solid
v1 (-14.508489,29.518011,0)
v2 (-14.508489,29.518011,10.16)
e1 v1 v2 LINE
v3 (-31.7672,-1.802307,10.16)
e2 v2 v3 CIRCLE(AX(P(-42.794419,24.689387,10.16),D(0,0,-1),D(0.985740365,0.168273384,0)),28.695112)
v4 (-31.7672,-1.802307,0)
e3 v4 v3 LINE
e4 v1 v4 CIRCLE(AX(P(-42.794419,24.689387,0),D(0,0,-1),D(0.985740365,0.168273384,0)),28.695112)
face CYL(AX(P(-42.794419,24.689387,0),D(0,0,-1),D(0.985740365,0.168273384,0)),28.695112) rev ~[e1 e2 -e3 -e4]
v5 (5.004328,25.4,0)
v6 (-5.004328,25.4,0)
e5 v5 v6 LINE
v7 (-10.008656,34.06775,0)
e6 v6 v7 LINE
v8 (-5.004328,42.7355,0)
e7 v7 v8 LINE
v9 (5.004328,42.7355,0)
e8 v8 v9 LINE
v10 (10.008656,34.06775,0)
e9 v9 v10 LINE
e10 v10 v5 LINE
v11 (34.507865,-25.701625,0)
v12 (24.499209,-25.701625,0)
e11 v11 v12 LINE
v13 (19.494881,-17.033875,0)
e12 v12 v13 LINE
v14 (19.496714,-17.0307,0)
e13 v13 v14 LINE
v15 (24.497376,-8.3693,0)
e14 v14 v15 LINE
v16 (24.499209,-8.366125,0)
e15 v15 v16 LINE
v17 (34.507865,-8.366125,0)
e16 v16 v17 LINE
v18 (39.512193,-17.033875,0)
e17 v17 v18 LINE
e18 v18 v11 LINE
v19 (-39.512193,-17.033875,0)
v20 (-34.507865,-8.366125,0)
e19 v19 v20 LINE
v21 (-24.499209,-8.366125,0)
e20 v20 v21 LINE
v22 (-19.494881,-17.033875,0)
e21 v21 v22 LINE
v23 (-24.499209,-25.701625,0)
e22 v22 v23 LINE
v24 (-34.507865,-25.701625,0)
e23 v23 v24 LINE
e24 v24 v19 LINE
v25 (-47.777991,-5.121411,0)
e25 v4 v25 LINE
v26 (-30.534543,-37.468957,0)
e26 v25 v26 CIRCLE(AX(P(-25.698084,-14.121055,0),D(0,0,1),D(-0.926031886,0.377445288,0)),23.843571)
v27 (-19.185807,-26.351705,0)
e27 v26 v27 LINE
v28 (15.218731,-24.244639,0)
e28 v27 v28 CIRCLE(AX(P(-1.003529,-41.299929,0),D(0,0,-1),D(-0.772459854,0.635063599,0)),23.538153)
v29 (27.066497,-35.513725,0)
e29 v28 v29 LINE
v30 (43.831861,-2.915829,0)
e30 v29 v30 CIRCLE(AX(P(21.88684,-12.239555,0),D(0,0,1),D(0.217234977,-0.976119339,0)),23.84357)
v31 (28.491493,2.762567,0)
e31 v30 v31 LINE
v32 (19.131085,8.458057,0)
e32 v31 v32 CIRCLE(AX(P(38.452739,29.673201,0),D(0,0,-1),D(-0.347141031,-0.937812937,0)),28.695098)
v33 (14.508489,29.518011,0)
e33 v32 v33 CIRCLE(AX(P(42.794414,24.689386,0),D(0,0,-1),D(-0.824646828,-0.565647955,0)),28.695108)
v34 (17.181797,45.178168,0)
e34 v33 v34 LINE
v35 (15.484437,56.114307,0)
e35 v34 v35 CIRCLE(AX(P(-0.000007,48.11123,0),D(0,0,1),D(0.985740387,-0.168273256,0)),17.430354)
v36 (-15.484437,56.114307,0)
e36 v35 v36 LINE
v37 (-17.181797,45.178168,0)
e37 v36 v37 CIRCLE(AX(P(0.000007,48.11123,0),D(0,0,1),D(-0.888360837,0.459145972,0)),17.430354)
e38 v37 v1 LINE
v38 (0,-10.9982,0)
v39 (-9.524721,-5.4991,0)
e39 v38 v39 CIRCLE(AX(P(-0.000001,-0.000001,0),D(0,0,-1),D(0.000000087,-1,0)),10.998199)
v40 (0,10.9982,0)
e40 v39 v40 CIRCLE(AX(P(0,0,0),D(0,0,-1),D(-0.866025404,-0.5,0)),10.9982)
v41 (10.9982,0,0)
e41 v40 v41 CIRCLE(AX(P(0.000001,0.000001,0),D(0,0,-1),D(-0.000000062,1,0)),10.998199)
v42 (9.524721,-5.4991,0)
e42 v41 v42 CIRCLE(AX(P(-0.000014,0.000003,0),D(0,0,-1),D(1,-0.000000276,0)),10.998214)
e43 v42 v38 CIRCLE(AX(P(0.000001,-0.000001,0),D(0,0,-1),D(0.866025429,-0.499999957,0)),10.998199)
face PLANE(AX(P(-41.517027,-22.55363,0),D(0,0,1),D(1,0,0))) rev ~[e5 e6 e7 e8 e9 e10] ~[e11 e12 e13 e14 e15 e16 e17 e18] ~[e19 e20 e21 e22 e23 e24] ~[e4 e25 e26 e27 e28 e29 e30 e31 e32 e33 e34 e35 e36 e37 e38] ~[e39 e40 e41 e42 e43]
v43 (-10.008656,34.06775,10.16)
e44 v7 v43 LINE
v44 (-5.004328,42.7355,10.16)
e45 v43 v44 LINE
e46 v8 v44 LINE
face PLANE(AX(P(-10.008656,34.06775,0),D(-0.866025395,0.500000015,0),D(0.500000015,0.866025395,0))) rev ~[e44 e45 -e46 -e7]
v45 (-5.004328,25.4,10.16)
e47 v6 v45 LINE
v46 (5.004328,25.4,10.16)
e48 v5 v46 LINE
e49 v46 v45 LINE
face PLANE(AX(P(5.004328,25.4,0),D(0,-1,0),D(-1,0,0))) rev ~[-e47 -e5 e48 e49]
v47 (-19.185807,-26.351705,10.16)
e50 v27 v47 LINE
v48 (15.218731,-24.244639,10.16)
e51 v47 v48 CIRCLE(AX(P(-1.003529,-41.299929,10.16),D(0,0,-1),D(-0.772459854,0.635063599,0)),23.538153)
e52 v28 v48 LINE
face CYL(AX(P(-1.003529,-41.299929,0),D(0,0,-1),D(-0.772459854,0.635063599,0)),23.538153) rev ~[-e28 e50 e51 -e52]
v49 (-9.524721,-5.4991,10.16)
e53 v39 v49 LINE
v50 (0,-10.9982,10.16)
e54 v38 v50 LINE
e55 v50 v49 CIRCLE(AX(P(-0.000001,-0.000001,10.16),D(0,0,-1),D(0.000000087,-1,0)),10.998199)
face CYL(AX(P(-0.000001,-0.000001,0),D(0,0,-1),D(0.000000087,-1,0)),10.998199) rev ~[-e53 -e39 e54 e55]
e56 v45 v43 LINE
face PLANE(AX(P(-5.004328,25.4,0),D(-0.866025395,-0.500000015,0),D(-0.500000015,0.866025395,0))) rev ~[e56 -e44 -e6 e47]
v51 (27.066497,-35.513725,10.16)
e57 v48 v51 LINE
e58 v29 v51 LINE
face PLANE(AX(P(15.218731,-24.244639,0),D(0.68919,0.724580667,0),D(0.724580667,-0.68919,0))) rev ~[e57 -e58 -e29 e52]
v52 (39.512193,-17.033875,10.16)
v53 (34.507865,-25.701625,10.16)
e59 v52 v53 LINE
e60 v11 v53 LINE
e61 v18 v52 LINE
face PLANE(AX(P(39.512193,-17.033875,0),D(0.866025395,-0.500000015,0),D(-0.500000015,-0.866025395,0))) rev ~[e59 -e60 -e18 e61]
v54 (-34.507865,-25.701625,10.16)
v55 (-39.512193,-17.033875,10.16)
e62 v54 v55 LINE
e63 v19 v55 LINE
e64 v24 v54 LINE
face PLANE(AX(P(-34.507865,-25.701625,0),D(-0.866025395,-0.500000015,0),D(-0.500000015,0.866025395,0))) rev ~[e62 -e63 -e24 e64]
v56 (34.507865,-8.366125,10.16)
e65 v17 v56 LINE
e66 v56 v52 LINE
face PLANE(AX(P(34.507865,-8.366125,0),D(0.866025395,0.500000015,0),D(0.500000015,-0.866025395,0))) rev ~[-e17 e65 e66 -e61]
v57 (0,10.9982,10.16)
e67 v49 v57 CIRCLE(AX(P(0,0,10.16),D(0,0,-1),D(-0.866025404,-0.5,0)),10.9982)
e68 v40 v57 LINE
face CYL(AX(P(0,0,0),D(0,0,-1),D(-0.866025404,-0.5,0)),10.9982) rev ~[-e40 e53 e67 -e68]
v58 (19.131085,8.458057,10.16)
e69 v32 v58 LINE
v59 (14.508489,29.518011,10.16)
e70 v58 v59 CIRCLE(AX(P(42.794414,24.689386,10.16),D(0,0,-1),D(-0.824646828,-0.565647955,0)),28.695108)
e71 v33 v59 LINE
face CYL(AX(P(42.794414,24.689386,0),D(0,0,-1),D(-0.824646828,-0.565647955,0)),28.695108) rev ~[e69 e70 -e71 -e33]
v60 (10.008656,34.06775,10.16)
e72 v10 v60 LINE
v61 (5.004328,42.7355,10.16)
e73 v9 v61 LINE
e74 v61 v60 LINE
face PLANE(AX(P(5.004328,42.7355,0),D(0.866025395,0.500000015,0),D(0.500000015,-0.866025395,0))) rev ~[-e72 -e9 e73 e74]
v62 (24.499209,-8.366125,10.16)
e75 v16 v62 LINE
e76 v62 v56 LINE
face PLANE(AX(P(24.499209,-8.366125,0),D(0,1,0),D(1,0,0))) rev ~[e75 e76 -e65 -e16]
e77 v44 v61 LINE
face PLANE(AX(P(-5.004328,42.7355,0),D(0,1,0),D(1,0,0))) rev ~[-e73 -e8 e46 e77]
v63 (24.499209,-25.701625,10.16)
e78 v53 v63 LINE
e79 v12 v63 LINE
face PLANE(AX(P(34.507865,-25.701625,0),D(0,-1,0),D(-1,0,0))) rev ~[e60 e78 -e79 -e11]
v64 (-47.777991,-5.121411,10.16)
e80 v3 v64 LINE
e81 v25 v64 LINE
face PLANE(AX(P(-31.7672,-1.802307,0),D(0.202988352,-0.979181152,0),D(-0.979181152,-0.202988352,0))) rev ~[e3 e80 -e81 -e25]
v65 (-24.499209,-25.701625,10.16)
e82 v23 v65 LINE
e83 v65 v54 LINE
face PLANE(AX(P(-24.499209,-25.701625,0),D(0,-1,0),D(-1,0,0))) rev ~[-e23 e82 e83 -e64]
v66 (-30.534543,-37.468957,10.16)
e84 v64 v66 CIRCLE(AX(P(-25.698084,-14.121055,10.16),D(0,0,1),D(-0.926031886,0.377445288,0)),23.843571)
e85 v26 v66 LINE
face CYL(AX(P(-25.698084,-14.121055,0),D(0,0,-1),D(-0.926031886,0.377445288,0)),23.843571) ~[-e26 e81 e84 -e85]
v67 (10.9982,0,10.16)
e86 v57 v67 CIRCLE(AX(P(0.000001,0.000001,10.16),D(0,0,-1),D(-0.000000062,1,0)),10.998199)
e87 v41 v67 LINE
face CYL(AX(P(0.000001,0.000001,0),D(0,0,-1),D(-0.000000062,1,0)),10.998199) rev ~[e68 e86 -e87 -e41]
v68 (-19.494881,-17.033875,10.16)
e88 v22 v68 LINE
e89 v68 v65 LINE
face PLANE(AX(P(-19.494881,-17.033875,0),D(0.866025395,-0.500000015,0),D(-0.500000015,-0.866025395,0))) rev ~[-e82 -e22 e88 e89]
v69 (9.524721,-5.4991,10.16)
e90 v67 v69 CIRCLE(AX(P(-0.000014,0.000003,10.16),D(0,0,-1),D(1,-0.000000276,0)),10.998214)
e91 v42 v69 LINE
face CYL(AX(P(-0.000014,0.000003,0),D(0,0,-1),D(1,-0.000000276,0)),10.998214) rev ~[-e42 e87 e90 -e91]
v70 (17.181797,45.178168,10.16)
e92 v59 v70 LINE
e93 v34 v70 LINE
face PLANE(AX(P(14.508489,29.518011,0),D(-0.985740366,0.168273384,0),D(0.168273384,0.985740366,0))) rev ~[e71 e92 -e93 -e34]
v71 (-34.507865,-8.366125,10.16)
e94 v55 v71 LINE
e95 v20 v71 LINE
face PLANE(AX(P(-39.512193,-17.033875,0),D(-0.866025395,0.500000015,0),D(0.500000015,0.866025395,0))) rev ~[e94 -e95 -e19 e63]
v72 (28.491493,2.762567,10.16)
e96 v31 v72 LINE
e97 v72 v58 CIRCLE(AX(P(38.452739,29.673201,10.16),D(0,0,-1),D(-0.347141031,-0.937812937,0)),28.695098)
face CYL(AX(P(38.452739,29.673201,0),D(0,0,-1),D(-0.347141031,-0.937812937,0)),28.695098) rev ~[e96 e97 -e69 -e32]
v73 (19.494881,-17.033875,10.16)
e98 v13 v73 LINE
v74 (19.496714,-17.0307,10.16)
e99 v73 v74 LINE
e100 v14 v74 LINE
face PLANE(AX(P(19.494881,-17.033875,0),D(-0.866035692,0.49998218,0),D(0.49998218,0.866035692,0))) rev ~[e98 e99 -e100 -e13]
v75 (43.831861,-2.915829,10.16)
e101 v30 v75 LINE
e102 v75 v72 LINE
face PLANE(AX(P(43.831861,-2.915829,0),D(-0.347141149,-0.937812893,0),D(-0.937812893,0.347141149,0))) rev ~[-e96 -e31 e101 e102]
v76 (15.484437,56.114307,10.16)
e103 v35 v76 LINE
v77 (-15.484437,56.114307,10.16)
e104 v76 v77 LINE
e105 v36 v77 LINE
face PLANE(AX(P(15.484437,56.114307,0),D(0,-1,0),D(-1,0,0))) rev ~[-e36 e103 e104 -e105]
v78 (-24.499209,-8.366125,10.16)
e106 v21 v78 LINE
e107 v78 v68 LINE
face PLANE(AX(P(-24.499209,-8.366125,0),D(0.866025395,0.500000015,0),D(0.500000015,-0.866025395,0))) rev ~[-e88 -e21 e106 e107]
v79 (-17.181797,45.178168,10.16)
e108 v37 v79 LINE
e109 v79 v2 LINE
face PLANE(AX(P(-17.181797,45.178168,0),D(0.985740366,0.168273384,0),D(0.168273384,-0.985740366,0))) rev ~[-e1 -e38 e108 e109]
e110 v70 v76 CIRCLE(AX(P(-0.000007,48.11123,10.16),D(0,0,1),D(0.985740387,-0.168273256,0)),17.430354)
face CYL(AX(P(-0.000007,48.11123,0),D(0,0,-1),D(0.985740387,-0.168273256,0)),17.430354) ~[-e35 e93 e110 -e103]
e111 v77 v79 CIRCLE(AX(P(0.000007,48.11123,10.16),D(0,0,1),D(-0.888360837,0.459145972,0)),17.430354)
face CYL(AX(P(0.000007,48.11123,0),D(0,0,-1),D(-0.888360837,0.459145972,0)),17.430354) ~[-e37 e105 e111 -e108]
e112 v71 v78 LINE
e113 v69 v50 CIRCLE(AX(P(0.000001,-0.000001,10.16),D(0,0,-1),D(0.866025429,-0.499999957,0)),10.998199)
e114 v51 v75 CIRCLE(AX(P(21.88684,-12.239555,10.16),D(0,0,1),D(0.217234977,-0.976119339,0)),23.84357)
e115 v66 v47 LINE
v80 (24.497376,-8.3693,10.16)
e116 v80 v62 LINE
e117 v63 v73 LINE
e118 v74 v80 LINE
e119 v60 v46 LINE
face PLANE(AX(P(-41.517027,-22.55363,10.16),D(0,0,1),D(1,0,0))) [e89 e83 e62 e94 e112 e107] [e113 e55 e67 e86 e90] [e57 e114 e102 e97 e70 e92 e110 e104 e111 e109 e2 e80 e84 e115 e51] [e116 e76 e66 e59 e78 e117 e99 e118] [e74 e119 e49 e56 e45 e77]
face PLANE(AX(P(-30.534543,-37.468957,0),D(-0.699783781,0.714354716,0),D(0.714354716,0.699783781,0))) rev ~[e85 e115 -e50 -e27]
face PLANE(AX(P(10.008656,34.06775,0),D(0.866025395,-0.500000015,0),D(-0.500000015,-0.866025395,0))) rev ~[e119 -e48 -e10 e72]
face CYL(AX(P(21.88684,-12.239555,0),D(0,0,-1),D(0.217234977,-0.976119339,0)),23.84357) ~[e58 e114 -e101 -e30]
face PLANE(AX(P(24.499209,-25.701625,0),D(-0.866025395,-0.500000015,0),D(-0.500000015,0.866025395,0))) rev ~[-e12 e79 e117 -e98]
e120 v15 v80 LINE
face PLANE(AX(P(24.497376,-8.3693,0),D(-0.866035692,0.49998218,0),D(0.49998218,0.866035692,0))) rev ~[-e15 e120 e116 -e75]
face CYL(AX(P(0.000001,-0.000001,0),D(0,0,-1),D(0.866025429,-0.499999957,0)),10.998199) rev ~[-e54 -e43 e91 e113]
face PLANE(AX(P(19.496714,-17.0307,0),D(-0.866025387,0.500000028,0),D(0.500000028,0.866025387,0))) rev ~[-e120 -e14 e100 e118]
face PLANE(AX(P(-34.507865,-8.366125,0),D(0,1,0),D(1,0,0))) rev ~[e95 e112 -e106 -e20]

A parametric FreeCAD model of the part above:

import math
import FreeCAD as App
import Part
import Sketcher

V = App.Vector
Q = App.Units.Quantity


def add_polygon(sketch, points):
    """Adds a closed chain of lines whose ends are joined by coincident constraints."""
    first, n = sketch.GeometryCount, len(points)
    for a, b in zip(points, points[1:] + points[:1]):
        sketch.addGeometry(Part.LineSegment(App.Vector(*a, 0), App.Vector(*b, 0)), False)
    for i in range(n):
        sketch.addConstraint(Sketcher.Constraint("Coincident", first + i, 2, first + (i + 1) % n, 1))

doc = App.newDocument("Part")
body = doc.addObject("PartDesign::Body", "Body")

sketch1 = body.newObject("Sketcher::SketchObject", "Sketch")
sketch1.AttachmentSupport = (doc.getObject("XY_Plane"), [""])
sketch1.MapMode = "FlatFace"
sketch1.addGeometry(Part.LineSegment(V(-31.7672, -1.8023, 0), V(-47.778, -5.1214, 0)), False)
sketch1.addGeometry(Part.LineSegment(V(-47.778, -5.1214, 0), V(-30.5345, -37.469, 0)), False)
sketch1.addGeometry(Part.LineSegment(V(-30.5345, -37.469, 0), V(-19.1858, -26.3517, 0)), False)
sketch1.addGeometry(Part.ArcOfCircle(Part.Circle(V(-1.0035, -41.2999, 0), V(0, 0, 1), 23.5382), math.radians(46), math.radians(141)), False)
sketch1.addGeometry(Part.LineSegment(V(15.2187, -24.2446, 0), V(27.0665, -35.5137, 0)), False)
sketch1.addGeometry(Part.ArcOfCircle(Part.Circle(V(21.8868, -12.2396, 0), V(0, 0, 1), 23.8436), math.radians(-77), math.radians(23)), False)
sketch1.addGeometry(Part.LineSegment(V(43.8319, -2.9158, 0), V(28.4915, 2.7626, 0)), False)
sketch1.addGeometry(Part.ArcOfCircle(Part.Circle(V(38.4527, 29.6732, 0), V(0, 0, 1), 28.6951), math.radians(-132), math.radians(-110)), False)
sketch1.addGeometry(Part.ArcOfCircle(Part.Circle(V(42.7944, 24.6894, 0), V(0, 0, 1), 28.6951), math.radians(170), math.radians(214)), False)
sketch1.addGeometry(Part.LineSegment(V(14.5085, 29.518, 0), V(17.1818, 45.1782, 0)), False)
sketch1.addGeometry(Part.ArcOfCircle(Part.Circle(V(0, 48.1112, 0), V(0, 0, 1), 17.4304), math.radians(-10), math.radians(27)), False)
sketch1.addGeometry(Part.LineSegment(V(15.4844, 56.1143, 0), V(-15.4844, 56.1143, 0)), False)
sketch1.addGeometry(Part.ArcOfCircle(Part.Circle(V(0, 48.1112, 0), V(0, 0, 1), 17.4304), math.radians(153), math.radians(190)), False)
sketch1.addGeometry(Part.LineSegment(V(-17.1818, 45.1782, 0), V(-14.5085, 29.518, 0)), False)
sketch1.addGeometry(Part.ArcOfCircle(Part.Circle(V(-42.7944, 24.6894, 0), V(0, 0, 1), 28.6951), math.radians(-67), math.radians(10)), False)
add_polygon(sketch1, [(-34.5079, -8.3661), (-24.4992, -8.3661), (-19.4949, -17.0339), (-24.4992, -25.7016), (-34.5079, -25.7016), (-39.5122, -17.0339)])
sketch1.addGeometry(Part.ArcOfCircle(Part.Circle(V(0, 0, 0), V(0, 0, 1), 10.9982), math.radians(-150), math.radians(-90)), False)
sketch1.addGeometry(Part.ArcOfCircle(Part.Circle(V(0, 0, 0), V(0, 0, 1), 10.9982), math.radians(90), math.radians(210)), False)
sketch1.addGeometry(Part.ArcOfCircle(Part.Circle(V(0, 0, 0), V(0, 0, 1), 10.9982), math.radians(0), math.radians(90)), False)
sketch1.addGeometry(Part.ArcOfCircle(Part.Circle(V(0, 0, 0), V(0, 0, 1), 10.9982), math.radians(-30), math.radians(0)), False)
sketch1.addGeometry(Part.ArcOfCircle(Part.Circle(V(0, 0, 0), V(0, 0, 1), 10.9982), math.radians(-90), math.radians(-30)), False)
add_polygon(sketch1, [(19.4949, -17.0339), (19.4967, -17.0307), (24.4974, -8.3693), (24.4992, -8.3661), (34.5079, -8.3661), (39.5122, -17.0339), (34.5079, -25.7016), (24.4992, -25.7016)])
add_polygon(sketch1, [(10.0087, 34.0677), (5.0043, 25.4), (-5.0043, 25.4), (-10.0087, 34.0677), (-5.0043, 42.7355), (5.0043, 42.7355)])
sketch1.addConstraint(Sketcher.Constraint("Coincident", 0, 2, 1, 1))
sketch1.addConstraint(Sketcher.Constraint("Coincident", 1, 2, 2, 1))
sketch1.addConstraint(Sketcher.Constraint("Coincident", 2, 2, 3, 2))
sketch1.addConstraint(Sketcher.Constraint("Tangent", 3, 1, 4, 1))
sketch1.addConstraint(Sketcher.Constraint("Coincident", 4, 2, 5, 1))
sketch1.addConstraint(Sketcher.Constraint("Coincident", 5, 2, 6, 1))
sketch1.addConstraint(Sketcher.Constraint("Tangent", 6, 2, 7, 2))
sketch1.addConstraint(Sketcher.Constraint("Coincident", 7, 1, 8, 2))
sketch1.addConstraint(Sketcher.Constraint("Tangent", 8, 1, 9, 1))
sketch1.addConstraint(Sketcher.Constraint("Tangent", 9, 2, 10, 1))
sketch1.addConstraint(Sketcher.Constraint("Coincident", 10, 2, 11, 1))
sketch1.addConstraint(Sketcher.Constraint("Coincident", 11, 2, 12, 1))
sketch1.addConstraint(Sketcher.Constraint("Tangent", 12, 2, 13, 1))
sketch1.addConstraint(Sketcher.Constraint("Tangent", 13, 2, 14, 2))
sketch1.addConstraint(Sketcher.Constraint("Coincident", 14, 1, 0, 1))
sketch1.addConstraint(Sketcher.Constraint("Tangent", 21, 1, 22, 2))
sketch1.addConstraint(Sketcher.Constraint("Tangent", 22, 1, 23, 2))
sketch1.addConstraint(Sketcher.Constraint("Tangent", 23, 1, 24, 2))
sketch1.addConstraint(Sketcher.Constraint("Tangent", 24, 1, 25, 2))
sketch1.addConstraint(Sketcher.Constraint("Tangent", 25, 1, 21, 2))
sketch1.addConstraint(Sketcher.Constraint("Horizontal", 11))
sketch1.addConstraint(Sketcher.Constraint("Horizontal", 15))
sketch1.addConstraint(Sketcher.Constraint("Horizontal", 18))
sketch1.addConstraint(Sketcher.Constraint("Horizontal", 29))
sketch1.addConstraint(Sketcher.Constraint("Horizontal", 32))
sketch1.addConstraint(Sketcher.Constraint("Horizontal", 35))
sketch1.addConstraint(Sketcher.Constraint("Horizontal", 38))
sketch1.addConstraint(Sketcher.Constraint("Coincident", 21, 3, -1, 1))
sketch1.addConstraint(Sketcher.Constraint("Coincident", 23, 3, -1, 1))
sketch1.addConstraint(Sketcher.Constraint("Equal", 10, 12))
sketch1.addConstraint(Sketcher.Constraint("Symmetric", 10, 3, 12, 3, -2))
sketch1.addConstraint(Sketcher.Constraint("Symmetric", 8, 3, 14, 3, -2))
sketch1.addConstraint(Sketcher.Constraint("Symmetric", 15, 2, 28, 2, -2))
sketch1.addConstraint(Sketcher.Constraint("Symmetric", 19, 2, 30, 2, -2))
sketch1.addConstraint(Sketcher.Constraint("Symmetric", 18, 2, 31, 2, -2))
sketch1.addConstraint(Sketcher.Constraint("Symmetric", 16, 2, 33, 2, -2))
sketch1.addConstraint(Sketcher.Constraint("Symmetric", 36, 2, 39, 2, -2))
sketch1.addConstraint(Sketcher.Constraint("PointOnObject", 22, 1, -2))
sketch1.addConstraint(Sketcher.Constraint("PointOnObject", 23, 1, -1))
sketch1.addConstraint(Sketcher.Constraint("PointOnObject", 25, 1, -2))
sketch1.addConstraint(Sketcher.Constraint("Parallel", 16, 19))
sketch1.addConstraint(Sketcher.Constraint("Parallel", 17, 20))
sketch1.addConstraint(Sketcher.Constraint("Parallel", 20, 27))
sketch1.addConstraint(Sketcher.Constraint("Parallel", 26, 28))
sketch1.addConstraint(Sketcher.Constraint("Parallel", 19, 30))
sketch1.addConstraint(Sketcher.Constraint("Parallel", 27, 31))
sketch1.addConstraint(Sketcher.Constraint("Parallel", 30, 33))
sketch1.addConstraint(Sketcher.Constraint("Parallel", 31, 34))
sketch1.addConstraint(Sketcher.Constraint("Parallel", 33, 36))
sketch1.addConstraint(Sketcher.Constraint("Parallel", 34, 37))
sketch1.addConstraint(Sketcher.Constraint("Parallel", 36, 39))
sketch1.addConstraint(Sketcher.Constraint("Horizontal", 9, 2, 12, 2))
sketch1.addConstraint(Sketcher.Constraint("Horizontal", 16, 2, 19, 2))
sketch1.addConstraint(Sketcher.Constraint("Horizontal", 21, 1, 24, 1))
sketch1.addConstraint(Sketcher.Constraint("Vertical", 15, 2, 17, 2))
sketch1.addConstraint(Sketcher.Constraint("Vertical", 35, 2, 37, 2))
sketch1.addConstraint(Sketcher.Constraint("Equal", 32, 35))
sketch1.addConstraint(Sketcher.Constraint("Equal", 0, 4))
sketch1.addConstraint(Sketcher.Constraint("Equal", 2, 9))
sketch1.addConstraint(Sketcher.Constraint("Equal", 26, 28))
sketch1.addConstraint(Sketcher.Constraint("Equal", 33, 34))
sketch1.addConstraint(Sketcher.Constraint("DistanceY", -1, 1, 34, 2, Q("1 in")))
sketch1.addConstraint(Sketcher.Constraint("Angle", 16, Q("-59.999999 deg")))
sketch1.addConstraint(Sketcher.Constraint("Radius", 21, Q("0.433 in")))
sketch1.addConstraint(Sketcher.Constraint("Radius", 7, Q("28.695098 mm")))
sketch1.addConstraint(Sketcher.Constraint("Distance", 6, Q("0.644 in")))
sketch1.addConstraint(Sketcher.Constraint("Radius", 5, Q("23.84357 mm")))
sketch1.addConstraint(Sketcher.Constraint("Radius", 14, Q("28.695112 mm")))
sketch1.addConstraint(Sketcher.Constraint("DistanceY", 26, 2, 24, 1, Q("0.454 in")))
sketch1.addConstraint(Sketcher.Constraint("DistanceY", 26, 2, 27, 2, Q("0.341 in")))
sketch1.addConstraint(Sketcher.Constraint("DistanceY", 21, 1, -1, 1, Q("0.2165 in")))
sketch1.addConstraint(Sketcher.Constraint("DistanceY", -1, 1, 37, 2, Q("1.6825 in")))
sketch1.addConstraint(Sketcher.Constraint("Radius", 3, Q("23.538153 mm")))
sketch1.addConstraint(Sketcher.Constraint("Radius", 10, Q("17.430354 mm")))
sketch1.addConstraint(Sketcher.Constraint("DistanceX", 12, 3, 8, 1, Q("0.5712001 in")))
sketch1.addConstraint(Sketcher.Constraint("DistanceX", 20, 2, 14, 1, Q("0.1079002 in")))
sketch1.addConstraint(Sketcher.Constraint("DistanceY", -1, 1, 7, 3, Q("29.673201 mm")))
sketch1.addConstraint(Sketcher.Constraint("DistanceX", 14, 1, -1, 1, Q("31.7672 mm")))
sketch1.addConstraint(Sketcher.Constraint("DistanceX", 5, 3, 7, 3, Q("16.565899 mm")))
sketch1.addConstraint(Sketcher.Constraint("DistanceY", 0, 2, 14, 3, Q("29.810798 mm")))
sketch1.addConstraint(Sketcher.Constraint("DistanceY", 2, 2, 14, 1, Q("24.549398 mm")))
sketch1.addConstraint(Sketcher.Constraint("DistanceY", 4, 2, 31, 2, Q("9.8121 mm")))
sketch1.addConstraint(Sketcher.Constraint("DistanceX", 11, 2, 11, 1, Q("30.968874 mm")))
sketch1.addConstraint(Sketcher.Constraint("DistanceX", 15, 1, 15, 2, Q("10.008656 mm")))
sketch1.addConstraint(Sketcher.Constraint("DistanceX", 3, 3, -1, 1, Q("1.003529 mm")))
sketch1.addConstraint(Sketcher.Constraint("DistanceY", 3, 3, -1, 1, Q("41.299929 mm")))
sketch1.addConstraint(Sketcher.Constraint("DistanceX", -1, 1, 5, 3, Q("21.88684 mm")))
sketch1.addConstraint(Sketcher.Constraint("DistanceY", -1, 1, 10, 3, Q("48.11123 mm")))
sketch1.addConstraint(Sketcher.Constraint("DistanceX", 14, 3, -1, 1, Q("42.794419 mm")))
sketch1.addConstraint(Sketcher.Constraint("DistanceX", 0, 2, -1, 1, Q("47.777991 mm")))
sketch1.addConstraint(Sketcher.Constraint("DistanceY", 0, 2, -1, 1, Q("5.121411 mm")))
sketch1.addConstraint(Sketcher.Constraint("DistanceX", 0, 2, 1, 2, Q("17.243448 mm")))
pad1 = body.newObject("PartDesign::Pad", "Pad")
pad1.Profile = sketch1
pad1.Length = Q("0.4 in")

sketch2 = body.newObject("Sketcher::SketchObject", "Sketch001")
sketch2.AttachmentSupport = (doc.getObject("XY_Plane"), [""])
sketch2.MapMode = "FlatFace"
sketch2.addGeometry(Part.LineSegment(V(-31, -37, 0), V(-48, -5, 0)), False)
sketch2.addGeometry(Part.ArcOfCircle(Part.Circle(V(-26, -14, 0), V(0, 0, 1), 24), math.radians(158), math.radians(258)), False)
sketch2.addConstraint(Sketcher.Constraint("Coincident", 0, 1, 1, 2))
sketch2.addConstraint(Sketcher.Constraint("Coincident", 1, 1, 0, 2))
sketch2.addConstraint(Sketcher.Constraint("Radius", 1, Q("23.843571 mm")))
sketch2.addConstraint(Sketcher.Constraint("DistanceX", 1, 1, -1, 1, Q("47.777991 mm")))
sketch2.addConstraint(Sketcher.Constraint("DistanceY", 1, 1, -1, 1, Q("5.121411 mm")))
sketch2.addConstraint(Sketcher.Constraint("DistanceX", 0, 1, 1, 3, Q("4.836459 mm")))
sketch2.addConstraint(Sketcher.Constraint("Distance", 0, Q("36.656517 mm")))
pad2 = body.newObject("PartDesign::Pad", "Pad001")
pad2.Profile = sketch2
pad2.Length = Q("0.4 in")

doc.recompute()
